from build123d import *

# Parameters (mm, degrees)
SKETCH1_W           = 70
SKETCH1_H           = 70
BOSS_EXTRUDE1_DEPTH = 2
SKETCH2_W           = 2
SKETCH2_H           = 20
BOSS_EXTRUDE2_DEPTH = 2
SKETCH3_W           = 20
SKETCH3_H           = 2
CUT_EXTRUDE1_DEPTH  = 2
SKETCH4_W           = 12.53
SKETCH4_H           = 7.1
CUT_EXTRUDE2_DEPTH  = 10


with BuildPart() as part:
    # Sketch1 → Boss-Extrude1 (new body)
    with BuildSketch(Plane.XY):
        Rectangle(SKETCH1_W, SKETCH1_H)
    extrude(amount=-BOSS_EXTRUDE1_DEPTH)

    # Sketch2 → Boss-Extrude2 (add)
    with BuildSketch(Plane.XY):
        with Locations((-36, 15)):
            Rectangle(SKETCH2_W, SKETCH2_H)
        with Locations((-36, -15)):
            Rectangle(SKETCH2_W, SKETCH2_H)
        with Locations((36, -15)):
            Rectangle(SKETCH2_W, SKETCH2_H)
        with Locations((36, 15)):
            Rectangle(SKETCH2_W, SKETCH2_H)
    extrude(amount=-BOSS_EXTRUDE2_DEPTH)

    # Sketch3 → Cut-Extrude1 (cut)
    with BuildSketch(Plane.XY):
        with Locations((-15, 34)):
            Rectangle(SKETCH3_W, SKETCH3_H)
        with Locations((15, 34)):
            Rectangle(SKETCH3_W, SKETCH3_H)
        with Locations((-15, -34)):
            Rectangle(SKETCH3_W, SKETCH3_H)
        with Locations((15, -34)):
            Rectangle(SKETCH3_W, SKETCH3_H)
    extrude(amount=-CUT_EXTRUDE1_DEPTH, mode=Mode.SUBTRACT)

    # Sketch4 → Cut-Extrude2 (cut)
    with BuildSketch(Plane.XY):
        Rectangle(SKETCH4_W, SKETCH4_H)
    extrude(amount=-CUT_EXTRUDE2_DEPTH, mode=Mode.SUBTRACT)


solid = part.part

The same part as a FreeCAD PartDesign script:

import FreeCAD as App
import Part
import Sketcher
from FreeCAD import Vector

doc = App.newDocument("Part")
params = doc.addObject("Spreadsheet::Sheet", "Params")
for row, (alias, value) in enumerate([
    ("sketch1_width", "70 mm"),
    ("pad1_length", "2 mm"),
    ("sketch2_width", "2 mm"),
    ("sketch2_height", "20 mm"),
    ("pad2_length", "2 mm"),
    ("sketch3_width", "20 mm"),
    ("sketch3_height", "2 mm"),
    ("pocket1_length", "2 mm"),
    ("sketch4_height", "7.1 mm"),
    ("sketch4_width", "12.53 mm"),
    ("pocket2_length", "10 mm"),
], start=1):
    params.set(f"A{row}", alias)
    params.set(f"B{row}", "=" + value)
    params.setAlias(f"B{row}", alias)

body = doc.addObject("PartDesign::Body", "Body")

sketch1 = body.newObject("Sketcher::SketchObject", "Sketch")
sketch1.AttachmentSupport = (doc.getObject("XY_Plane"), [""])
sketch1.MapMode = "FlatFace"
sketch1.addGeometry(Part.LineSegment(Vector(-35, 35, 0), Vector(-35, -35, 0)), False)
sketch1.addGeometry(Part.LineSegment(Vector(-35, -35, 0), Vector(35, -35, 0)), False)
sketch1.addGeometry(Part.LineSegment(Vector(35, -35, 0), Vector(35, 35, 0)), False)
sketch1.addGeometry(Part.LineSegment(Vector(35, 35, 0), Vector(-35, 35, 0)), False)
sketch1.addConstraint(Sketcher.Constraint("Coincident", 0, 2, 1, 1))
sketch1.addConstraint(Sketcher.Constraint("Coincident", 1, 2, 2, 1))
sketch1.addConstraint(Sketcher.Constraint("Coincident", 2, 2, 3, 1))
sketch1.addConstraint(Sketcher.Constraint("Coincident", 3, 2, 0, 1))
sketch1.addConstraint(Sketcher.Constraint("Vertical", 0))
sketch1.addConstraint(Sketcher.Constraint("Horizontal", 1))
sketch1.addConstraint(Sketcher.Constraint("Vertical", 2))
sketch1.addConstraint(Sketcher.Constraint("Horizontal", 3))
sketch1.addConstraint(Sketcher.Constraint("Symmetric", 0, 2, 2, 2, -1, 1))
sketch1.addConstraint(Sketcher.Constraint("Equal", 3, 0))
sketch1.addConstraint(Sketcher.Constraint("DistanceX", 1, 1, 1, 2, 70.0))
sketch1.setExpression("Constraints[10]", "Params.sketch1_width")
pad1 = body.newObject("PartDesign::Pad", "Pad")
pad1.Profile = sketch1
pad1.setExpression("Length", "Params.pad1_length")
pad1.Reversed = True

sketch2 = body.newObject("Sketcher::SketchObject", "Sketch001")
sketch2.AttachmentSupport = (doc.getObject("XY_Plane"), [""])
sketch2.MapMode = "FlatFace"
sketch2.addGeometry(Part.LineSegment(Vector(-37, 25, 0), Vector(-37, 5, 0)), False)
sketch2.addGeometry(Part.LineSegment(Vector(-37, 5, 0), Vector(-35, 5, 0)), False)
sketch2.addGeometry(Part.LineSegment(Vector(-35, 5, 0), Vector(-35, 25, 0)), False)
sketch2.addGeometry(Part.LineSegment(Vector(-35, 25, 0), Vector(-37, 25, 0)), False)
sketch2.addGeometry(Part.LineSegment(Vector(-37, -5, 0), Vector(-37, -25, 0)), False)
sketch2.addGeometry(Part.LineSegment(Vector(-37, -25, 0), Vector(-35, -25, 0)), False)
sketch2.addGeometry(Part.LineSegment(Vector(-35, -25, 0), Vector(-35, -5, 0)), False)
sketch2.addGeometry(Part.LineSegment(Vector(-35, -5, 0), Vector(-37, -5, 0)), False)
sketch2.addGeometry(Part.LineSegment(Vector(35, -5, 0), Vector(35, -25, 0)), False)
sketch2.addGeometry(Part.LineSegment(Vector(35, -25, 0), Vector(37, -25, 0)), False)
sketch2.addGeometry(Part.LineSegment(Vector(37, -25, 0), Vector(37, -5, 0)), False)
sketch2.addGeometry(Part.LineSegment(Vector(37, -5, 0), Vector(35, -5, 0)), False)
sketch2.addGeometry(Part.LineSegment(Vector(35, 25, 0), Vector(35, 5, 0)), False)
sketch2.addGeometry(Part.LineSegment(Vector(35, 5, 0), Vector(37, 5, 0)), False)
sketch2.addGeometry(Part.LineSegment(Vector(37, 5, 0), Vector(37, 25, 0)), False)
sketch2.addGeometry(Part.LineSegment(Vector(37, 25, 0), Vector(35, 25, 0)), False)
sketch2.addConstraint(Sketcher.Constraint("Coincident", 0, 2, 1, 1))
sketch2.addConstraint(Sketcher.Constraint("Coincident", 1, 2, 2, 1))
sketch2.addConstraint(Sketcher.Constraint("Coincident", 2, 2, 3, 1))
sketch2.addConstraint(Sketcher.Constraint("Coincident", 3, 2, 0, 1))
sketch2.addConstraint(Sketcher.Constraint("Coincident", 4, 2, 5, 1))
sketch2.addConstraint(Sketcher.Constraint("Coincident", 5, 2, 6, 1))
sketch2.addConstraint(Sketcher.Constraint("Coincident", 6, 2, 7, 1))
sketch2.addConstraint(Sketcher.Constraint("Coincident", 7, 2, 4, 1))
sketch2.addConstraint(Sketcher.Constraint("Coincident", 8, 2, 9, 1))
sketch2.addConstraint(Sketcher.Constraint("Coincident", 9, 2, 10, 1))
sketch2.addConstraint(Sketcher.Constraint("Coincident", 10, 2, 11, 1))
sketch2.addConstraint(Sketcher.Constraint("Coincident", 11, 2, 8, 1))
sketch2.addConstraint(Sketcher.Constraint("Coincident", 12, 2, 13, 1))
sketch2.addConstraint(Sketcher.Constraint("Coincident", 13, 2, 14, 1))
sketch2.addConstraint(Sketcher.Constraint("Coincident", 14, 2, 15, 1))
sketch2.addConstraint(Sketcher.Constraint("Coincident", 15, 2, 12, 1))
sketch2.addConstraint(Sketcher.Constraint("Vertical", 0))
sketch2.addConstraint(Sketcher.Constraint("Horizontal", 1))
sketch2.addConstraint(Sketcher.Constraint("Vertical", 2))
sketch2.addConstraint(Sketcher.Constraint("Horizontal", 3))
sketch2.addConstraint(Sketcher.Constraint("Vertical", 4))
sketch2.addConstraint(Sketcher.Constraint("Horizontal", 5))
sketch2.addConstraint(Sketcher.Constraint("Vertical", 6))
sketch2.addConstraint(Sketcher.Constraint("Horizontal", 7))
sketch2.addConstraint(Sketcher.Constraint("Vertical", 8))
sketch2.addConstraint(Sketcher.Constraint("Horizontal", 9))
sketch2.addConstraint(Sketcher.Constraint("Vertical", 10))
sketch2.addConstraint(Sketcher.Constraint("Horizontal", 11))
sketch2.addConstraint(Sketcher.Constraint("Vertical", 12))
sketch2.addConstraint(Sketcher.Constraint("Horizontal", 13))
sketch2.addConstraint(Sketcher.Constraint("Vertical", 14))
sketch2.addConstraint(Sketcher.Constraint("Horizontal", 15))
sketch2.addConstraint(Sketcher.Constraint("Symmetric", 2, 2, 8, 2, -1, 1))
sketch2.addConstraint(Sketcher.Constraint("Symmetric", 0, 2, 10, 2, -1, 1))
sketch2.addConstraint(Sketcher.Constraint("Symmetric", 6, 2, 12, 2, -1, 1))
sketch2.addConstraint(Sketcher.Constraint("Symmetric", 4, 2, 14, 2, -1, 1))
sketch2.addConstraint(Sketcher.Constraint("Symmetric", 5, 2, 8, 2, -2))
sketch2.addConstraint(Sketcher.Constraint("Symmetric", 7, 2, 10, 2, -2))
sketch2.addConstraint(Sketcher.Constraint("DistanceX", 1, 1, 1, 2, 2.0))
sketch2.addConstraint(Sketcher.Constraint("DistanceY", 0, 2, 0, 1, 20.0))
sketch2.addConstraint(Sketcher.Constraint("DistanceX", 0, 2, -1, 1, 37.0))
sketch2.addConstraint(Sketcher.Constraint("DistanceY", -1, 1, 0, 2, 5.0))
sketch2.setExpression("Constraints[38]", "Params.sketch2_width")
sketch2.setExpression("Constraints[39]", "Params.sketch2_height")
pad2 = body.newObject("PartDesign::Pad", "Pad001")
pad2.Profile = sketch2
pad2.setExpression("Length", "Params.pad2_length")
pad2.Reversed = True

sketch3 = body.newObject("Sketcher::SketchObject", "Sketch002")
sketch3.AttachmentSupport = (doc.getObject("XY_Plane"), [""])
sketch3.MapMode = "FlatFace"
sketch3.addGeometry(Part.LineSegment(Vector(-25, 35, 0), Vector(-25, 33, 0)), False)
sketch3.addGeometry(Part.LineSegment(Vector(-25, 33, 0), Vector(-5, 33, 0)), False)
sketch3.addGeometry(Part.LineSegment(Vector(-5, 33, 0), Vector(-5, 35, 0)), False)
sketch3.addGeometry(Part.LineSegment(Vector(-5, 35, 0), Vector(-25, 35, 0)), False)
sketch3.addGeometry(Part.LineSegment(Vector(5, 35, 0), Vector(5, 33, 0)), False)
sketch3.addGeometry(Part.LineSegment(Vector(5, 33, 0), Vector(25, 33, 0)), False)
sketch3.addGeometry(Part.LineSegment(Vector(25, 33, 0), Vector(25, 35, 0)), False)
sketch3.addGeometry(Part.LineSegment(Vector(25, 35, 0), Vector(5, 35, 0)), False)
sketch3.addGeometry(Part.LineSegment(Vector(-25, -33, 0), Vector(-25, -35, 0)), False)
sketch3.addGeometry(Part.LineSegment(Vector(-25, -35, 0), Vector(-5, -35, 0)), False)
sketch3.addGeometry(Part.LineSegment(Vector(-5, -35, 0), Vector(-5, -33, 0)), False)
sketch3.addGeometry(Part.LineSegment(Vector(-5, -33, 0), Vector(-25, -33, 0)), False)
sketch3.addGeometry(Part.LineSegment(Vector(5, -33, 0), Vector(5, -35, 0)), False)
sketch3.addGeometry(Part.LineSegment(Vector(5, -35, 0), Vector(25, -35, 0)), False)
sketch3.addGeometry(Part.LineSegment(Vector(25, -35, 0), Vector(25, -33, 0)), False)
sketch3.addGeometry(Part.LineSegment(Vector(25, -33, 0), Vector(5, -33, 0)), False)
sketch3.addConstraint(Sketcher.Constraint("Coincident", 0, 2, 1, 1))
sketch3.addConstraint(Sketcher.Constraint("Coincident", 1, 2, 2, 1))
sketch3.addConstraint(Sketcher.Constraint("Coincident", 2, 2, 3, 1))
sketch3.addConstraint(Sketcher.Constraint("Coincident", 3, 2, 0, 1))
sketch3.addConstraint(Sketcher.Constraint("Coincident", 4, 2, 5, 1))
sketch3.addConstraint(Sketcher.Constraint("Coincident", 5, 2, 6, 1))
sketch3.addConstraint(Sketcher.Constraint("Coincident", 6, 2, 7, 1))
sketch3.addConstraint(Sketcher.Constraint("Coincident", 7, 2, 4, 1))
sketch3.addConstraint(Sketcher.Constraint("Coincident", 8, 2, 9, 1))
sketch3.addConstraint(Sketcher.Constraint("Coincident", 9, 2, 10, 1))
sketch3.addConstraint(Sketcher.Constraint("Coincident", 10, 2, 11, 1))
sketch3.addConstraint(Sketcher.Constraint("Coincident", 11, 2, 8, 1))
sketch3.addConstraint(Sketcher.Constraint("Coincident", 12, 2, 13, 1))
sketch3.addConstraint(Sketcher.Constraint("Coincident", 13, 2, 14, 1))
sketch3.addConstraint(Sketcher.Constraint("Coincident", 14, 2, 15, 1))
sketch3.addConstraint(Sketcher.Constraint("Coincident", 15, 2, 12, 1))
sketch3.addConstraint(Sketcher.Constraint("Vertical", 0))
sketch3.addConstraint(Sketcher.Constraint("Horizontal", 1))
sketch3.addConstraint(Sketcher.Constraint("Vertical", 2))
sketch3.addConstraint(Sketcher.Constraint("Horizontal", 3))
sketch3.addConstraint(Sketcher.Constraint("Vertical", 4))
sketch3.addConstraint(Sketcher.Constraint("Horizontal", 5))
sketch3.addConstraint(Sketcher.Constraint("Vertical", 6))
sketch3.addConstraint(Sketcher.Constraint("Horizontal", 7))
sketch3.addConstraint(Sketcher.Constraint("Vertical", 8))
sketch3.addConstraint(Sketcher.Constraint("Horizontal", 9))
sketch3.addConstraint(Sketcher.Constraint("Vertical", 10))
sketch3.addConstraint(Sketcher.Constraint("Horizontal", 11))
sketch3.addConstraint(Sketcher.Constraint("Vertical", 12))
sketch3.addConstraint(Sketcher.Constraint("Horizontal", 13))
sketch3.addConstraint(Sketcher.Constraint("Vertical", 14))
sketch3.addConstraint(Sketcher.Constraint("Horizontal", 15))
sketch3.addConstraint(Sketcher.Constraint("Symmetric", 6, 2, 8, 2, -1, 1))
sketch3.addConstraint(Sketcher.Constraint("Symmetric", 4, 2, 10, 2, -1, 1))
sketch3.addConstraint(Sketcher.Constraint("Symmetric", 2, 2, 12, 2, -1, 1))
sketch3.addConstraint(Sketcher.Constraint("Symmetric", 0, 2, 14, 2, -1, 1))
sketch3.addConstraint(Sketcher.Constraint("Symmetric", 1, 2, 4, 2, -2))
sketch3.addConstraint(Sketcher.Constraint("Symmetric", 3, 2, 6, 2, -2))
sketch3.addConstraint(Sketcher.Constraint("DistanceX", 1, 1, 1, 2, 20.0))
sketch3.addConstraint(Sketcher.Constraint("DistanceY", 0, 2, 0, 1, 2.0))
sketch3.addConstraint(Sketcher.Constraint("DistanceX", 0, 2, -1, 1, 25.0))
sketch3.addConstraint(Sketcher.Constraint("DistanceY", -1, 1, 0, 2, 33.0))
sketch3.setExpression("Constraints[38]", "Params.sketch3_width")
sketch3.setExpression("Constraints[39]", "Params.sketch3_height")
pocket1 = body.newObject("PartDesign::Pocket", "Pocket")
pocket1.Profile = sketch3
pocket1.setExpression("Length", "Params.pocket1_length")

sketch4 = body.newObject("Sketcher::SketchObject", "Sketch003")
sketch4.AttachmentSupport = (doc.getObject("XY_Plane"), [""])
sketch4.MapMode = "FlatFace"
sketch4.addGeometry(Part.LineSegment(Vector(-6.265, 3.55, 0), Vector(-6.265, -3.55, 0)), False)
sketch4.addGeometry(Part.LineSegment(Vector(-6.265, -3.55, 0), Vector(6.265, -3.55, 0)), False)
sketch4.addGeometry(Part.LineSegment(Vector(6.265, -3.55, 0), Vector(6.265, 3.55, 0)), False)
sketch4.addGeometry(Part.LineSegment(Vector(6.265, 3.55, 0), Vector(-6.265, 3.55, 0)), False)
sketch4.addConstraint(Sketcher.Constraint("Coincident", 0, 2, 1, 1))
sketch4.addConstraint(Sketcher.Constraint("Coincident", 1, 2, 2, 1))
sketch4.addConstraint(Sketcher.Constraint("Coincident", 2, 2, 3, 1))
sketch4.addConstraint(Sketcher.Constraint("Coincident", 3, 2, 0, 1))
sketch4.addConstraint(Sketcher.Constraint("Vertical", 0))
sketch4.addConstraint(Sketcher.Constraint("Horizontal", 1))
sketch4.addConstraint(Sketcher.Constraint("Vertical", 2))
sketch4.addConstraint(Sketcher.Constraint("Horizontal", 3))
sketch4.addConstraint(Sketcher.Constraint("Symmetric", 0, 2, 2, 2, -1, 1))
sketch4.addConstraint(Sketcher.Constraint("DistanceY", 0, 2, 0, 1, 7.1))
sketch4.addConstraint(Sketcher.Constraint("DistanceX", 1, 1, 1, 2, 12.53))
sketch4.setExpression("Constraints[9]", "Params.sketch4_height")
sketch4.setExpression("Constraints[10]", "Params.sketch4_width")
pocket2 = body.newObject("PartDesign::Pocket", "Pocket001")
pocket2.Profile = sketch4
pocket2.setExpression("Length", "Params.pocket2_length")

doc.recompute()
